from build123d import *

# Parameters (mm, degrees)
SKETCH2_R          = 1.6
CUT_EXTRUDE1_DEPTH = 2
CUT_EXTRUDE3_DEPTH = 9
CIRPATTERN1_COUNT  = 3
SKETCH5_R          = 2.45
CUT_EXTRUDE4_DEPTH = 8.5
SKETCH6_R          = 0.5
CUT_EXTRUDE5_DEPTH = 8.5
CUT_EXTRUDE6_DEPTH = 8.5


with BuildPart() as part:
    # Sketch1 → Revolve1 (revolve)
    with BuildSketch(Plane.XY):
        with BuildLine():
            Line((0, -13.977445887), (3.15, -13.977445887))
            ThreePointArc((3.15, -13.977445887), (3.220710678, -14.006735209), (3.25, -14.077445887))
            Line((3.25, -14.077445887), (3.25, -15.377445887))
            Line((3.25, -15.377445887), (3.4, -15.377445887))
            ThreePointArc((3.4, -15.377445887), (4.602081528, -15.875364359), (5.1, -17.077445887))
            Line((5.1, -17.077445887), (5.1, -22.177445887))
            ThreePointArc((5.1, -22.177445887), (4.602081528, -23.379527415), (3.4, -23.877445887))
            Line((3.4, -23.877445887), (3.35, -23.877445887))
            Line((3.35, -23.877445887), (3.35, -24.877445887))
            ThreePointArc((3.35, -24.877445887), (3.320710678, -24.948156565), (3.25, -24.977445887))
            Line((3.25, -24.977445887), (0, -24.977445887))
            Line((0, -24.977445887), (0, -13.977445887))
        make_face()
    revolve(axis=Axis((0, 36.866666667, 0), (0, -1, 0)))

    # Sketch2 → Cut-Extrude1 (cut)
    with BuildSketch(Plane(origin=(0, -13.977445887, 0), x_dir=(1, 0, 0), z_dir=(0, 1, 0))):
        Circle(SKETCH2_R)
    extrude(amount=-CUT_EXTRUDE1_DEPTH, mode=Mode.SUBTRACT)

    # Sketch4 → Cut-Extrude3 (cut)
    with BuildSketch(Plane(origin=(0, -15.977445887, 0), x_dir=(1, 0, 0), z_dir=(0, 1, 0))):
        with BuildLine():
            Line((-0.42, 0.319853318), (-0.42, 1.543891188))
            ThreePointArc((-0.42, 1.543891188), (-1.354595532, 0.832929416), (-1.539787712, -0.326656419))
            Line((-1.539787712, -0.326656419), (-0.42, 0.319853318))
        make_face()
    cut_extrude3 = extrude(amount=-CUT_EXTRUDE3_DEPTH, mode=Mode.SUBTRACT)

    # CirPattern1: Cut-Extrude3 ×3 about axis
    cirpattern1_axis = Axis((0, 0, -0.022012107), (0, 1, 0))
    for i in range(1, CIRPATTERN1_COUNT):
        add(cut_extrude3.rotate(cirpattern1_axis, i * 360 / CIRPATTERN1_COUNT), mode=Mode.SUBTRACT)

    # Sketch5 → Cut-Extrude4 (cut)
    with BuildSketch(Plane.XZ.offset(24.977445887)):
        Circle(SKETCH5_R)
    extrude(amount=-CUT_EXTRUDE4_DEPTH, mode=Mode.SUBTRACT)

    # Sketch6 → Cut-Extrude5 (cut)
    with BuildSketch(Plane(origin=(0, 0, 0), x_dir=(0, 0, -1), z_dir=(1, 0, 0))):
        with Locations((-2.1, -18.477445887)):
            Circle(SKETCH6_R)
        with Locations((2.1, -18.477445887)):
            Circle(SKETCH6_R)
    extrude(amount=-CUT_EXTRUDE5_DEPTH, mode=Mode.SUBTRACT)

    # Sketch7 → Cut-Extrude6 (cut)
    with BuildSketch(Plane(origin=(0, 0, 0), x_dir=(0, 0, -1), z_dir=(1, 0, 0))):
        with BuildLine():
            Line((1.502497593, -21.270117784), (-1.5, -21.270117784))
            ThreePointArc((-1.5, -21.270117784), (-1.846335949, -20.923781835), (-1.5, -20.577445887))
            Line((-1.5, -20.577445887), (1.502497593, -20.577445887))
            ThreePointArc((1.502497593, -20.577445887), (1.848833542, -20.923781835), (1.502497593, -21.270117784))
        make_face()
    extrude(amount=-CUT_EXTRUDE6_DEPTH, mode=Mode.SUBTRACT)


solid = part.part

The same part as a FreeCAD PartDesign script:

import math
import FreeCAD as App
import Part
import Sketcher
from FreeCAD import Vector
Q = App.Units.Quantity

doc = App.newDocument("Part")
body = doc.addObject("PartDesign::Body", "Body")

sketch1 = body.newObject("Sketcher::SketchObject", "Sketch")
sketch1.AttachmentSupport = (doc.getObject("XY_Plane"), [""])
sketch1.MapMode = "FlatFace"
sketch1.addGeometry(Part.LineSegment(Vector(3.15, -13.977446, 0), Vector(0, -13.977446, 0)), False)
sketch1.addGeometry(Part.LineSegment(Vector(0, -13.977446, 0), Vector(0, -24.977446, 0)), False)
sketch1.addGeometry(Part.LineSegment(Vector(0, -24.977446, 0), Vector(3.25, -24.977446, 0)), False)
sketch1.addGeometry(Part.ArcOfCircle(Part.Circle(Vector(3.25, -24.877446, 0), Vector(0, 0, 1), 0.1), math.radians(-90), math.radians(0)), False)
sketch1.addGeometry(Part.LineSegment(Vector(3.35, -24.877446, 0), Vector(3.35, -23.877446, 0)), False)
sketch1.addGeometry(Part.LineSegment(Vector(3.35, -23.877446, 0), Vector(3.4, -23.877446, 0)), False)
sketch1.addGeometry(Part.ArcOfCircle(Part.Circle(Vector(3.4, -22.177446, 0), Vector(0, 0, 1), 1.7), math.radians(-90), math.radians(0)), False)
sketch1.addGeometry(Part.LineSegment(Vector(5.1, -22.177446, 0), Vector(5.1, -17.077446, 0)), False)
sketch1.addGeometry(Part.ArcOfCircle(Part.Circle(Vector(3.4, -17.077446, 0), Vector(0, 0, 1), 1.7), math.radians(0), math.radians(90)), False)
sketch1.addGeometry(Part.LineSegment(Vector(3.4, -15.377446, 0), Vector(3.25, -15.377446, 0)), False)
sketch1.addGeometry(Part.LineSegment(Vector(3.25, -15.377446, 0), Vector(3.25, -14.077446, 0)), False)
sketch1.addGeometry(Part.ArcOfCircle(Part.Circle(Vector(3.15, -14.077446, 0), Vector(0, 0, 1), 0.1), math.radians(0), math.radians(90)), False)
sketch1.addConstraint(Sketcher.Constraint("Coincident", 0, 2, 1, 1))
sketch1.addConstraint(Sketcher.Constraint("Coincident", 1, 2, 2, 1))
sketch1.addConstraint(Sketcher.Constraint("Tangent", 2, 2, 3, 1))
sketch1.addConstraint(Sketcher.Constraint("Tangent", 3, 2, 4, 1))
sketch1.addConstraint(Sketcher.Constraint("Coincident", 4, 2, 5, 1))
sketch1.addConstraint(Sketcher.Constraint("Tangent", 5, 2, 6, 1))
sketch1.addConstraint(Sketcher.Constraint("Tangent", 6, 2, 7, 1))
sketch1.addConstraint(Sketcher.Constraint("Tangent", 7, 2, 8, 1))
sketch1.addConstraint(Sketcher.Constraint("Tangent", 8, 2, 9, 1))
sketch1.addConstraint(Sketcher.Constraint("Coincident", 9, 2, 10, 1))
sketch1.addConstraint(Sketcher.Constraint("Tangent", 10, 2, 11, 1))
sketch1.addConstraint(Sketcher.Constraint("Tangent", 11, 2, 0, 1))
sketch1.addConstraint(Sketcher.Constraint("Horizontal", 0))
sketch1.addConstraint(Sketcher.Constraint("Vertical", 1))
sketch1.addConstraint(Sketcher.Constraint("Horizontal", 2))
sketch1.addConstraint(Sketcher.Constraint("Vertical", 4))
sketch1.addConstraint(Sketcher.Constraint("Horizontal", 5))
sketch1.addConstraint(Sketcher.Constraint("Vertical", 7))
sketch1.addConstraint(Sketcher.Constraint("Horizontal", 9))
sketch1.addConstraint(Sketcher.Constraint("Vertical", 10))
sketch1.addConstraint(Sketcher.Constraint("Equal", 6, 8))
sketch1.addConstraint(Sketcher.Constraint("Equal", 3, 11))
sketch1.addConstraint(Sketcher.Constraint("PointOnObject", 0, 2, -2))
sketch1.addConstraint(Sketcher.Constraint("Vertical", 2, 2, 9, 2))
sketch1.addConstraint(Sketcher.Constraint("Radius", 3, 0.1))
sketch1.addConstraint(Sketcher.Constraint("Radius", 6, 1.7))
sketch1.addConstraint(Sketcher.Constraint("DistanceY", 1, 2, 1, 1, 11.0))
sketch1.addConstraint(Sketcher.Constraint("DistanceY", 4, 1, 4, 2, 1.0))
sketch1.addConstraint(Sketcher.Constraint("DistanceY", 7, 1, 7, 2, 5.1))
sketch1.addConstraint(Sketcher.Constraint("DistanceX", 0, 2, 0, 1, 3.15))
sketch1.addConstraint(Sketcher.Constraint("DistanceX", 5, 1, 5, 2, 0.05))
sketch1.addConstraint(Sketcher.Constraint("DistanceY", 3, 3, -1, 1, 24.877446))
revolution = body.newObject("PartDesign::Revolution", "Revolution")
revolution.Profile = sketch1
revolution.ReferenceAxis = (sketch1, ["V_Axis"])
revolution.Angle = 360

sketch2 = body.newObject("Sketcher::SketchObject", "Sketch001")
sketch2.AttachmentSupport = (doc.getObject("XZ_Plane"), [""])
sketch2.MapMode = "FlatFace"
sketch2.AttachmentOffset = App.Placement(Vector(0, 0, 13.977446), App.Rotation())
sketch2.addGeometry(Part.Circle(Vector(0, 0, 0), Vector(0, 0, 1), 1.6), False)
sketch2.addConstraint(Sketcher.Constraint("Coincident", 0, 3, -1, 1))
sketch2.addConstraint(Sketcher.Constraint("Diameter", 0, 3.2))
pocket1 = body.newObject("PartDesign::Pocket", "Pocket")
pocket1.Profile = sketch2
pocket1.Length = 2
pocket1.Reversed = True

sketch3 = body.newObject("Sketcher::SketchObject", "Sketch002")
sketch3.AttachmentSupport = (doc.getObject("XZ_Plane"), [""])
sketch3.MapMode = "FlatFace"
sketch3.AttachmentOffset = App.Placement(Vector(0, 0, 15.977446), App.Rotation())
sketch3.addGeometry(Part.LineSegment(Vector(-0.42, -0.319853, 0), Vector(-0.42, -1.543891, 0)), False)
sketch3.addGeometry(Part.ArcOfCircle(Part.Circle(Vector(0, -0.022012, 0), Vector(0, 0, 1), 1.57877), math.radians(167.241146), math.radians(254.571846)), False)
sketch3.addGeometry(Part.LineSegment(Vector(-1.539788, 0.326656, 0), Vector(-0.42, -0.319853, 0)), False)
sketch3.addConstraint(Sketcher.Constraint("Coincident", 0, 2, 1, 2))
sketch3.addConstraint(Sketcher.Constraint("Coincident", 1, 1, 2, 1))
sketch3.addConstraint(Sketcher.Constraint("Coincident", 2, 2, 0, 1))
sketch3.addConstraint(Sketcher.Constraint("Vertical", 0))
sketch3.addConstraint(Sketcher.Constraint("PointOnObject", 1, 3, -2))
sketch3.addConstraint(Sketcher.Constraint("Angle", 2, Q("-30 deg")))
sketch3.addConstraint(Sketcher.Constraint("DistanceX", 0, 2, -1, 1, 0.42))
sketch3.addConstraint(Sketcher.Constraint("Radius", 1, 1.57877))
sketch3.addConstraint(Sketcher.Constraint("Distance", 2, 1.293019))
sketch3.addConstraint(Sketcher.Constraint("DistanceY", 0, 2, -1, 1, 1.543891))
pocket2 = body.newObject("PartDesign::Pocket", "Pocket001")
pocket2.Profile = sketch3
pocket2.Length = 9
pocket2.Reversed = True
doc.recompute()

datumline = body.newObject("PartDesign::Line", "DatumLine")
datumline.Placement = App.Placement(Vector(0, 0, -0.022012), App.Rotation(Vector(0, 0, 1), Vector(0, 1, 0)))
polarpattern = body.newObject("PartDesign::PolarPattern", "PolarPattern")
polarpattern.Originals = [pocket2]
polarpattern.Axis = (datumline, [""])
polarpattern.Angle = 360
polarpattern.Occurrences = 3
body.Tip = polarpattern

sketch4 = body.newObject("Sketcher::SketchObject", "Sketch003")
sketch4.AttachmentSupport = (doc.getObject("XZ_Plane"), [""])
sketch4.MapMode = "FlatFace"
sketch4.AttachmentOffset = App.Placement(Vector(0, 0, 24.977446), App.Rotation())
sketch4.addGeometry(Part.Circle(Vector(0, 0, 0), Vector(0, 0, 1), 2.45), False)
sketch4.addConstraint(Sketcher.Constraint("Coincident", 0, 3, -1, 1))
sketch4.addConstraint(Sketcher.Constraint("Diameter", 0, 4.9))
pocket3 = body.newObject("PartDesign::Pocket", "Pocket002")
pocket3.Profile = sketch4
pocket3.Length = 8.5

sketch5 = body.newObject("Sketcher::SketchObject", "Sketch004")
sketch5.AttachmentSupport = (doc.getObject("YZ_Plane"), [""])
sketch5.MapMode = "FlatFace"
sketch5.addGeometry(Part.Circle(Vector(-18.477446, 2.1, 0), Vector(0, 0, 1), 0.5), False)
sketch5.addGeometry(Part.Circle(Vector(-18.477446, -2.1, 0), Vector(0, 0, 1), 0.5), False)
sketch5.addConstraint(Sketcher.Constraint("Equal", 0, 1))
sketch5.addConstraint(Sketcher.Constraint("Symmetric", 0, 3, 1, 3, -1))
sketch5.addConstraint(Sketcher.Constraint("Diameter", 0, 1.0))
sketch5.addConstraint(Sketcher.Constraint("DistanceY", -1, 1, 0, 3, 2.1))
sketch5.addConstraint(Sketcher.Constraint("DistanceX", 0, 3, -1, 1, 18.477446))
pocket4 = body.newObject("PartDesign::Pocket", "Pocket003")
pocket4.Profile = sketch5
pocket4.Length = 8.5

sketch6 = body.newObject("Sketcher::SketchObject", "Sketch005")
sketch6.AttachmentSupport = (doc.getObject("YZ_Plane"), [""])
sketch6.MapMode = "FlatFace"
sketch6.addGeometry(Part.LineSegment(Vector(-21.270118, 1.5, 0), Vector(-21.270118, -1.502498, 0)), False)
sketch6.addGeometry(Part.ArcOfCircle(Part.Circle(Vector(-20.923782, -1.502498, 0), Vector(0, 0, 1), 0.346336), math.radians(180), math.radians(360)), False)
sketch6.addGeometry(Part.LineSegment(Vector(-20.577446, -1.502498, 0), Vector(-20.577446, 1.5, 0)), False)
sketch6.addGeometry(Part.ArcOfCircle(Part.Circle(Vector(-20.923782, 1.5, 0), Vector(0, 0, 1), 0.346336), math.radians(0), math.radians(180)), False)
sketch6.addConstraint(Sketcher.Constraint("Tangent", 0, 2, 1, 1))
sketch6.addConstraint(Sketcher.Constraint("Tangent", 1, 2, 2, 1))
sketch6.addConstraint(Sketcher.Constraint("Tangent", 2, 2, 3, 1))
sketch6.addConstraint(Sketcher.Constraint("Tangent", 3, 2, 0, 1))
sketch6.addConstraint(Sketcher.Constraint("Vertical", 0))
sketch6.addConstraint(Sketcher.Constraint("Vertical", 2))
sketch6.addConstraint(Sketcher.Constraint("DistanceY", -1, 1, 3, 3, 1.5))
sketch6.addConstraint(Sketcher.Constraint("Radius", 1, 0.346336))
sketch6.addConstraint(Sketcher.Constraint("DistanceY", 0, 2, 0, 1, 3.002498))
sketch6.addConstraint(Sketcher.Constraint("DistanceX", 1, 3, -1, 1, 20.923782))
pocket5 = body.newObject("PartDesign::Pocket", "Pocket004")
pocket5.Profile = sketch6
pocket5.Length = 8.5

doc.recompute()
